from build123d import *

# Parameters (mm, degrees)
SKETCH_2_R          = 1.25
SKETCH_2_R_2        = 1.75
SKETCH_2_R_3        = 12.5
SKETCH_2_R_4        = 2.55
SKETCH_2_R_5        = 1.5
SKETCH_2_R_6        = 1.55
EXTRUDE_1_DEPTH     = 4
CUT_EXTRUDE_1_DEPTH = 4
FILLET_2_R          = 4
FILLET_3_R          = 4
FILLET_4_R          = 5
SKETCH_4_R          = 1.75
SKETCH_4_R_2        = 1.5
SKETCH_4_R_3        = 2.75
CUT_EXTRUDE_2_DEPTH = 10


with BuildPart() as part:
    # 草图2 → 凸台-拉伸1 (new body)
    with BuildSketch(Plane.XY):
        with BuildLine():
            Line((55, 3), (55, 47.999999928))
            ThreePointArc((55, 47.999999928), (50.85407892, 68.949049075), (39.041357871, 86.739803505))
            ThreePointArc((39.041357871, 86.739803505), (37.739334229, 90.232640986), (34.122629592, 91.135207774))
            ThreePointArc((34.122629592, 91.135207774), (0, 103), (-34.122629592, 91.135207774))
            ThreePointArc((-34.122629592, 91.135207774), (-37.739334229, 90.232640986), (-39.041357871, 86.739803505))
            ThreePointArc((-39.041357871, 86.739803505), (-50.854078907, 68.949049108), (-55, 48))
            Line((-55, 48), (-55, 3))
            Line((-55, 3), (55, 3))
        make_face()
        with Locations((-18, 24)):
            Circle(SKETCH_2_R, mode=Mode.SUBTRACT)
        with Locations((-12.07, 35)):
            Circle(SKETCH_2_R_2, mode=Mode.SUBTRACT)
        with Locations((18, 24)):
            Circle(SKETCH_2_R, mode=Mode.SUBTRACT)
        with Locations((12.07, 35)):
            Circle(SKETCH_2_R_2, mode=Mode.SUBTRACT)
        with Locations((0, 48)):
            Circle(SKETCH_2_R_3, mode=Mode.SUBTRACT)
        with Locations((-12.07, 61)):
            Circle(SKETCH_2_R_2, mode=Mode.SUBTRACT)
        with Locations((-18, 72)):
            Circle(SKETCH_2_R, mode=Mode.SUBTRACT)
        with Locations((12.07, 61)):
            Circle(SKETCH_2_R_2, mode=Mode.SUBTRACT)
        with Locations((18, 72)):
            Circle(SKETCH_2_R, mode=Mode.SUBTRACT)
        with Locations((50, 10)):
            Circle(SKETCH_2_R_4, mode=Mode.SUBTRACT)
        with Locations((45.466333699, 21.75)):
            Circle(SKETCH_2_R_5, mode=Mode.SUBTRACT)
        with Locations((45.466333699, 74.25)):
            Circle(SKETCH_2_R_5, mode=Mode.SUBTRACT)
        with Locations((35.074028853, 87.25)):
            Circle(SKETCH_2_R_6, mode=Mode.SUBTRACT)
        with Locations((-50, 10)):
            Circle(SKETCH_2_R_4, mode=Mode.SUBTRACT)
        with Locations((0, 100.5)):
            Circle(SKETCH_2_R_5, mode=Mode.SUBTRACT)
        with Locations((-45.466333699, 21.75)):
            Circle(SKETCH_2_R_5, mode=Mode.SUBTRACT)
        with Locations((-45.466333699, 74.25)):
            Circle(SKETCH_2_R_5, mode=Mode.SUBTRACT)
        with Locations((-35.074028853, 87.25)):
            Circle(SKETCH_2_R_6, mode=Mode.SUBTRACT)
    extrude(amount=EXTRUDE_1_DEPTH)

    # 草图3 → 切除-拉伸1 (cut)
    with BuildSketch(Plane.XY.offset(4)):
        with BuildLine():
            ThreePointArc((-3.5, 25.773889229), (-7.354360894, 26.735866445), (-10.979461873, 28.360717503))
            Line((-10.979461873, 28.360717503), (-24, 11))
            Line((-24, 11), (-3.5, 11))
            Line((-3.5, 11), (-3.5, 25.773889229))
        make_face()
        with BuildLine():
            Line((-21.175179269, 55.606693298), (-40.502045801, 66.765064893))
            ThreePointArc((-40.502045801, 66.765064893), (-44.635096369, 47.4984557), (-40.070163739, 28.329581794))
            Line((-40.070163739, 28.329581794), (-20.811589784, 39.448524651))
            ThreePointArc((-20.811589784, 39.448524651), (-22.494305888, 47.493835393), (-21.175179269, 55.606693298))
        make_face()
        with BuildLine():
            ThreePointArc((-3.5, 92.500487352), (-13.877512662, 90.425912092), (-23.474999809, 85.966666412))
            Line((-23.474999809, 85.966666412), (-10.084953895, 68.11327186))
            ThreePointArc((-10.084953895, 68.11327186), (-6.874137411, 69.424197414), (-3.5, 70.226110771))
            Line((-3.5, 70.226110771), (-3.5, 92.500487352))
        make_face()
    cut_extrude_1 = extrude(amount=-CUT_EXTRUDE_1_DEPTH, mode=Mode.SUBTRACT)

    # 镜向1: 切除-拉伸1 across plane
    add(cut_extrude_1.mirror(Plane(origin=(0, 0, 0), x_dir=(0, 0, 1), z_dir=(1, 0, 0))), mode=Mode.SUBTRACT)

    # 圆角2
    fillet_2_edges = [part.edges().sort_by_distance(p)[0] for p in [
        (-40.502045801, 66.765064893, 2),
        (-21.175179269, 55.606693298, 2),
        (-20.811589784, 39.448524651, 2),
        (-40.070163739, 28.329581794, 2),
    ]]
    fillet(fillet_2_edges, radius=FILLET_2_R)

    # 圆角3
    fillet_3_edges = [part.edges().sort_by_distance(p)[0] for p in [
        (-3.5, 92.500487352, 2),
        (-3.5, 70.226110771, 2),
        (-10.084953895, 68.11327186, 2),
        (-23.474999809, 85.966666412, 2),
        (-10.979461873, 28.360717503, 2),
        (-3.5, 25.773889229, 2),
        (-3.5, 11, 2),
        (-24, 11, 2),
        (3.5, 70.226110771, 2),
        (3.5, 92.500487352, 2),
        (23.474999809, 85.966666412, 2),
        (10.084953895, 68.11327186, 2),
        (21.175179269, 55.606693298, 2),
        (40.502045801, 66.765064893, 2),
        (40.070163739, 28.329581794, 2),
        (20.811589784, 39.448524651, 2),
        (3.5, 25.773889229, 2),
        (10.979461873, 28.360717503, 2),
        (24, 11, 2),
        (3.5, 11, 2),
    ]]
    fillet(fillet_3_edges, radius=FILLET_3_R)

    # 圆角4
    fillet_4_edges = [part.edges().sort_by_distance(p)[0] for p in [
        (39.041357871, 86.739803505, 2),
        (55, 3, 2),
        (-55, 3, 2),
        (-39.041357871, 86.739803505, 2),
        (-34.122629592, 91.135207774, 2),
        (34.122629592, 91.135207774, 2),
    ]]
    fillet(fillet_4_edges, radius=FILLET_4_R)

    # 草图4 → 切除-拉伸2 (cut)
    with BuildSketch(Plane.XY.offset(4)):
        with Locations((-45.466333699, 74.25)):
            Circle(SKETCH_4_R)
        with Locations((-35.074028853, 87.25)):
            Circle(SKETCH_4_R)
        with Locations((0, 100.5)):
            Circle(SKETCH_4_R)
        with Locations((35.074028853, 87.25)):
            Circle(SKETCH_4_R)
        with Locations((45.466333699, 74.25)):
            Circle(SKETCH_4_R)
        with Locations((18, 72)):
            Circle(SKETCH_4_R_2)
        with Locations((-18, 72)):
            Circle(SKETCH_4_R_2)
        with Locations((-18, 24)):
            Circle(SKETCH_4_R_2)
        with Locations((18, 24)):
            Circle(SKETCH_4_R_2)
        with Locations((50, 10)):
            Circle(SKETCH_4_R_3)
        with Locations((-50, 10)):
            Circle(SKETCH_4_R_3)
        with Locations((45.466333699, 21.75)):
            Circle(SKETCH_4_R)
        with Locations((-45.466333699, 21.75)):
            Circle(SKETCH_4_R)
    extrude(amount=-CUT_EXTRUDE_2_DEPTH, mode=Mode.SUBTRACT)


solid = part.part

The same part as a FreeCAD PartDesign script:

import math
import FreeCAD as App
import Part
import Sketcher
Q = App.Units.Quantity


def edges_at(feature, points):
    """Names of the edges that pass closest to the given points."""
    edges = feature.Shape.Edges
    near = lambda p: min(range(len(edges)), key=lambda i: edges[i].distToShape(Part.Vertex(*p))[0])
    return sorted({f"Edge{near(p) + 1}" for p in points})

doc = App.newDocument("Part")
body = doc.addObject("PartDesign::Body", "Body")

# Sketch on XY plane
sketch1 = body.newObject("Sketcher::SketchObject", "Sketch")
sketch1.AttachmentSupport = (doc.getObject("XY_Plane"), [""])
sketch1.MapMode = "FlatFace"
sketch1.addGeometry(Part.LineSegment(App.Vector(55, 3, 0), App.Vector(55, 48, 0)), False)
sketch1.addGeometry(Part.ArcOfCircle(Part.Circle(App.Vector(0, 48, 0), App.Vector(0, 0, 1), 55), math.radians(0), math.radians(44.777868)), False)
sketch1.addGeometry(Part.ArcOfCircle(Part.Circle(App.Vector(35.074029, 87.25, 0), App.Vector(0, 0, 1), 4), math.radians(-7.327988), math.radians(103.759669)), False)
sketch1.addGeometry(Part.ArcOfCircle(Part.Circle(App.Vector(0, 48, 0), App.Vector(0, 0, 1), 55), math.radians(51.653813), math.radians(128.346187)), False)
sketch1.addGeometry(Part.ArcOfCircle(Part.Circle(App.Vector(-35.074029, 87.25, 0), App.Vector(0, 0, 1), 4), math.radians(76.240331), math.radians(187.327988)), False)
sketch1.addGeometry(Part.ArcOfCircle(Part.Circle(App.Vector(0, 48, 0), App.Vector(0, 0, 1), 55), math.radians(135.222132), math.radians(180)), False)
sketch1.addGeometry(Part.LineSegment(App.Vector(-55, 48, 0), App.Vector(-55, 3, 0)), False)
sketch1.addGeometry(Part.LineSegment(App.Vector(-55, 3, 0), App.Vector(55, 3, 0)), False)
sketch1.addGeometry(Part.Circle(App.Vector(-50, 10, 0), App.Vector(0, 0, 1), 2.55), False)
sketch1.addGeometry(Part.Circle(App.Vector(-45.466334, 21.75, 0), App.Vector(0, 0, 1), 1.5), False)
sketch1.addGeometry(Part.Circle(App.Vector(-18, 24, 0), App.Vector(0, 0, 1), 1.25), False)
sketch1.addGeometry(Part.Circle(App.Vector(-12.07, 35, 0), App.Vector(0, 0, 1), 1.75), False)
sketch1.addGeometry(Part.Circle(App.Vector(0, 48, 0), App.Vector(0, 0, 1), 12.5), False)
sketch1.addGeometry(Part.Circle(App.Vector(18, 24, 0), App.Vector(0, 0, 1), 1.25), False)
sketch1.addGeometry(Part.Circle(App.Vector(50, 10, 0), App.Vector(0, 0, 1), 2.55), False)
sketch1.addGeometry(Part.Circle(App.Vector(45.466334, 21.75, 0), App.Vector(0, 0, 1), 1.5), False)
sketch1.addGeometry(Part.Circle(App.Vector(12.07, 35, 0), App.Vector(0, 0, 1), 1.75), False)
sketch1.addGeometry(Part.Circle(App.Vector(-45.466334, 74.25, 0), App.Vector(0, 0, 1), 1.5), False)
sketch1.addGeometry(Part.Circle(App.Vector(-12.07, 61, 0), App.Vector(0, 0, 1), 1.75), False)
sketch1.addGeometry(Part.Circle(App.Vector(-18, 72, 0), App.Vector(0, 0, 1), 1.25), False)
sketch1.addGeometry(Part.Circle(App.Vector(-35.074029, 87.25, 0), App.Vector(0, 0, 1), 1.55), False)
sketch1.addGeometry(Part.Circle(App.Vector(0, 100.5, 0), App.Vector(0, 0, 1), 1.5), False)
sketch1.addGeometry(Part.Circle(App.Vector(12.07, 61, 0), App.Vector(0, 0, 1), 1.75), False)
sketch1.addGeometry(Part.Circle(App.Vector(18, 72, 0), App.Vector(0, 0, 1), 1.25), False)
sketch1.addGeometry(Part.Circle(App.Vector(45.466334, 74.25, 0), App.Vector(0, 0, 1), 1.5), False)
sketch1.addGeometry(Part.Circle(App.Vector(35.074029, 87.25, 0), App.Vector(0, 0, 1), 1.55), False)
sketch1.addConstraint(Sketcher.Constraint("Tangent", 0, 2, 1, 1))
sketch1.addConstraint(Sketcher.Constraint("Coincident", 1, 2, 2, 1))
sketch1.addConstraint(Sketcher.Constraint("Coincident", 2, 2, 3, 1))
sketch1.addConstraint(Sketcher.Constraint("Coincident", 3, 2, 4, 1))
sketch1.addConstraint(Sketcher.Constraint("Coincident", 4, 2, 5, 1))
sketch1.addConstraint(Sketcher.Constraint("Tangent", 5, 2, 6, 1))
sketch1.addConstraint(Sketcher.Constraint("Coincident", 6, 2, 7, 1))
sketch1.addConstraint(Sketcher.Constraint("Coincident", 7, 2, 0, 1))
sketch1.addConstraint(Sketcher.Constraint("Vertical", 0))
sketch1.addConstraint(Sketcher.Constraint("Vertical", 6))
sketch1.addConstraint(Sketcher.Constraint("Horizontal", 7))
sketch1.addConstraint(Sketcher.Constraint("Coincident", 3, 3, 1, 3))
sketch1.addConstraint(Sketcher.Constraint("Coincident", 5, 3, 1, 3))
sketch1.addConstraint(Sketcher.Constraint("Coincident", 12, 3, 1, 3))
sketch1.addConstraint(Sketcher.Constraint("Coincident", 20, 3, 4, 3))
sketch1.addConstraint(Sketcher.Constraint("Coincident", 25, 3, 2, 3))
sketch1.addConstraint(Sketcher.Constraint("Equal", 1, 3))
sketch1.addConstraint(Sketcher.Constraint("Equal", 2, 4))
sketch1.addConstraint(Sketcher.Constraint("Equal", 3, 5))
sketch1.addConstraint(Sketcher.Constraint("Equal", 10, 13))
sketch1.addConstraint(Sketcher.Constraint("Equal", 8, 14))
sketch1.addConstraint(Sketcher.Constraint("Equal", 9, 15))
sketch1.addConstraint(Sketcher.Constraint("Equal", 11, 16))
sketch1.addConstraint(Sketcher.Constraint("Equal", 15, 17))
sketch1.addConstraint(Sketcher.Constraint("Equal", 16, 18))
sketch1.addConstraint(Sketcher.Constraint("Equal", 13, 19))
sketch1.addConstraint(Sketcher.Constraint("Equal", 17, 21))
sketch1.addConstraint(Sketcher.Constraint("Equal", 18, 22))
sketch1.addConstraint(Sketcher.Constraint("Equal", 19, 23))
sketch1.addConstraint(Sketcher.Constraint("Equal", 21, 24))
sketch1.addConstraint(Sketcher.Constraint("Equal", 20, 25))
sketch1.addConstraint(Sketcher.Constraint("Symmetric", 2, 3, 4, 3, -2))
sketch1.addConstraint(Sketcher.Constraint("Symmetric", 10, 3, 13, 3, -2))
sketch1.addConstraint(Sketcher.Constraint("Symmetric", 8, 3, 14, 3, -2))
sketch1.addConstraint(Sketcher.Constraint("Symmetric", 9, 3, 15, 3, -2))
sketch1.addConstraint(Sketcher.Constraint("Symmetric", 11, 3, 16, 3, -2))
sketch1.addConstraint(Sketcher.Constraint("Symmetric", 18, 3, 22, 3, -2))
sketch1.addConstraint(Sketcher.Constraint("Symmetric", 19, 3, 23, 3, -2))
sketch1.addConstraint(Sketcher.Constraint("Symmetric", 17, 3, 24, 3, -2))
sketch1.addConstraint(Sketcher.Constraint("PointOnObject", 1, 3, -2))
sketch1.addConstraint(Sketcher.Constraint("PointOnObject", 21, 3, -2))
sketch1.addConstraint(Sketcher.Constraint("Vertical", 9, 3, 17, 3))
sketch1.addConstraint(Sketcher.Constraint("Vertical", 11, 3, 18, 3))
sketch1.addConstraint(Sketcher.Constraint("Vertical", 10, 3, 19, 3))
sketch1.addConstraint(Sketcher.Constraint("Diameter", 9, Q("3 mm")))
sketch1.addConstraint(Sketcher.Constraint("Diameter", 12, Q("25 mm")))
sketch1.addConstraint(Sketcher.Constraint("Radius", 1, Q("55 mm")))
sketch1.addConstraint(Sketcher.Constraint("Radius", 2, Q("4 mm")))
sketch1.addConstraint(Sketcher.Constraint("Diameter", 8, Q("5.1 mm")))
sketch1.addConstraint(Sketcher.Constraint("Diameter", 10, Q("2.5 mm")))
sketch1.addConstraint(Sketcher.Constraint("Diameter", 11, Q("3.5 mm")))
sketch1.addConstraint(Sketcher.Constraint("Diameter", 20, Q("3.1 mm")))
sketch1.addConstraint(Sketcher.Constraint("DistanceY", 0, 1, 0, 2, Q("45 mm")))
sketch1.addConstraint(Sketcher.Constraint("DistanceY", -1, 1, 1, 3, Q("48 mm")))
sketch1.addConstraint(Sketcher.Constraint("DistanceX", 8, 3, -1, 1, Q("50 mm")))
sketch1.addConstraint(Sketcher.Constraint("DistanceY", -1, 1, 8, 3, Q("10 mm")))
sketch1.addConstraint(Sketcher.Constraint("DistanceX", 10, 3, -1, 1, Q("18 mm")))
sketch1.addConstraint(Sketcher.Constraint("DistanceY", -1, 1, 10, 3, Q("24 mm")))
sketch1.addConstraint(Sketcher.Constraint("DistanceY", -1, 1, 11, 3, Q("35 mm")))
sketch1.addConstraint(Sketcher.Constraint("DistanceY", -1, 1, 18, 3, Q("61 mm")))
sketch1.addConstraint(Sketcher.Constraint("DistanceY", -1, 1, 19, 3, Q("72 mm")))
sketch1.addConstraint(Sketcher.Constraint("DistanceY", 17, 3, 4, 3, Q("13 mm")))
sketch1.addConstraint(Sketcher.Constraint("DistanceY", -1, 1, 21, 3, Q("100.5 mm")))
sketch1.addConstraint(Sketcher.Constraint("DistanceY", 9, 3, 4, 3, Q("65.5 mm")))
sketch1.addConstraint(Sketcher.Constraint("DistanceY", -1, 1, 2, 3, Q("87.25 mm")))
sketch1.addConstraint(Sketcher.Constraint("DistanceX", 11, 3, -1, 1, Q("12.07 mm")))
sketch1.addConstraint(Sketcher.Constraint("DistanceX", 2, 2, 2, 3, Q("0.951399 mm")))
sketch1.addConstraint(Sketcher.Constraint("DistanceX", 9, 3, -1, 1, Q("45.466334 mm")))
pad1 = body.newObject("PartDesign::Pad", "Pad")
pad1.Profile = sketch1
pad1.Length = 4

# Sketch on XY plane
sketch2 = body.newObject("Sketcher::SketchObject", "Sketch001")
sketch2.AttachmentSupport = (doc.getObject("XY_Plane"), [""])
sketch2.MapMode = "FlatFace"
sketch2.AttachmentOffset = App.Placement(App.Vector(0, 0, 4), App.Rotation())
sketch2.addGeometry(Part.ArcOfCircle(Part.Circle(App.Vector(0, 48, 0), App.Vector(0, 0, 1), 22.5), math.radians(-119.207642), math.radians(-98.949018)), False)
sketch2.addGeometry(Part.LineSegment(App.Vector(-10.979462, 28.360718, 0), App.Vector(-24, 11, 0)), False)
sketch2.addGeometry(Part.LineSegment(App.Vector(-24, 11, 0), App.Vector(-3.5, 11, 0)), False)
sketch2.addGeometry(Part.LineSegment(App.Vector(-3.5, 11, 0), App.Vector(-3.5, 25.773889, 0)), False)
sketch2.addGeometry(Part.LineSegment(App.Vector(-21.175179, 55.606693, 0), App.Vector(-40.502046, 66.765065, 0)), False)
sketch2.addGeometry(Part.ArcOfCircle(Part.Circle(App.Vector(0, 48, 0), App.Vector(0, 0, 1), 44.637914), math.radians(155.141167), math.radians(206.146393)), False)
sketch2.addGeometry(Part.LineSegment(App.Vector(-40.070164, 28.329582, 0), App.Vector(-20.81159, 39.448525, 0)), False)
sketch2.addGeometry(Part.ArcOfCircle(Part.Circle(App.Vector(0, 48, 0), App.Vector(0, 0, 1), 22.5), math.radians(160.240348), math.radians(202.337744)), False)
sketch2.addGeometry(Part.ArcOfCircle(Part.Circle(App.Vector(0, 48, 0), App.Vector(0, 0, 1), 44.637914), math.radians(94.497103), math.radians(121.728731)), False)
sketch2.addGeometry(Part.LineSegment(App.Vector(-23.475, 85.966666, 0), App.Vector(-10.084954, 68.113272, 0)), False)
sketch2.addGeometry(Part.ArcOfCircle(Part.Circle(App.Vector(0, 48, 0), App.Vector(0, 0, 1), 22.5), math.radians(98.949018), math.radians(116.629549)), False)
sketch2.addGeometry(Part.LineSegment(App.Vector(-3.5, 70.226111, 0), App.Vector(-3.5, 92.500487, 0)), False)
sketch2.addConstraint(Sketcher.Constraint("Coincident", 0, 1, 1, 1))
sketch2.addConstraint(Sketcher.Constraint("Coincident", 1, 2, 2, 1))
sketch2.addConstraint(Sketcher.Constraint("Coincident", 2, 2, 3, 1))
sketch2.addConstraint(Sketcher.Constraint("Coincident", 3, 2, 0, 2))
sketch2.addConstraint(Sketcher.Constraint("Coincident", 4, 2, 5, 1))
sketch2.addConstraint(Sketcher.Constraint("Coincident", 5, 2, 6, 1))
sketch2.addConstraint(Sketcher.Constraint("Coincident", 6, 2, 7, 2))
sketch2.addConstraint(Sketcher.Constraint("Coincident", 7, 1, 4, 1))
sketch2.addConstraint(Sketcher.Constraint("Coincident", 8, 2, 9, 1))
sketch2.addConstraint(Sketcher.Constraint("Coincident", 9, 2, 10, 2))
sketch2.addConstraint(Sketcher.Constraint("Coincident", 10, 1, 11, 1))
sketch2.addConstraint(Sketcher.Constraint("Coincident", 11, 2, 8, 1))
sketch2.addConstraint(Sketcher.Constraint("Horizontal", 2))
sketch2.addConstraint(Sketcher.Constraint("Vertical", 3))
sketch2.addConstraint(Sketcher.Constraint("Vertical", 11))
sketch2.addConstraint(Sketcher.Constraint("Coincident", 5, 3, 0, 3))
sketch2.addConstraint(Sketcher.Constraint("Coincident", 7, 3, 0, 3))
sketch2.addConstraint(Sketcher.Constraint("Coincident", 8, 3, 0, 3))
sketch2.addConstraint(Sketcher.Constraint("Coincident", 10, 3, 0, 3))
sketch2.addConstraint(Sketcher.Constraint("Equal", 0, 7))
sketch2.addConstraint(Sketcher.Constraint("Equal", 5, 8))
sketch2.addConstraint(Sketcher.Constraint("Equal", 7, 10))
sketch2.addConstraint(Sketcher.Constraint("PointOnObject", 0, 3, -2))
sketch2.addConstraint(Sketcher.Constraint("Vertical", 3, 2, 10, 1))
sketch2.addConstraint(Sketcher.Constraint("Equal", 4, 9))
sketch2.addConstraint(Sketcher.Constraint("Radius", 0, Q("22.5 mm")))
sketch2.addConstraint(Sketcher.Constraint("Angle", 4, Q("150 deg")))
sketch2.addConstraint(Sketcher.Constraint("Angle", 6, Q("30 deg")))
sketch2.addConstraint(Sketcher.Constraint("DistanceX", 2, 1, 2, 2, Q("20.5 mm")))
sketch2.addConstraint(Sketcher.Constraint("DistanceY", -1, 1, 0, 3, Q("48 mm")))
sketch2.addConstraint(Sketcher.Constraint("DistanceX", 1, 2, -1, 1, Q("24 mm")))
sketch2.addConstraint(Sketcher.Constraint("DistanceY", -1, 1, 1, 2, Q("11 mm")))
sketch2.addConstraint(Sketcher.Constraint("DistanceX", 8, 2, -1, 1, Q("23.475 mm")))
sketch2.addConstraint(Sketcher.Constraint("Radius", 5, Q("44.637914 mm")))
sketch2.addConstraint(Sketcher.Constraint("DistanceX", 5, 2, 0, 1, Q("29.090702 mm")))
sketch2.addConstraint(Sketcher.Constraint("DistanceY", 4, 2, 8, 2, Q("19.201602 mm")))
sketch2.addConstraint(Sketcher.Constraint("DistanceX", 0, 1, -1, 1, Q("10.979462 mm")))
pocket1 = body.newObject("PartDesign::Pocket", "Pocket")
pocket1.Profile = sketch2
pocket1.Length = 4
doc.recompute()

mirrored = body.newObject("PartDesign::Mirrored", "Mirrored")
mirrored.Originals = [pocket1]
mirrored.MirrorPlane = (doc.getObject("YZ_Plane"), [""])
body.Tip = mirrored
doc.recompute()

fillet = body.newObject("PartDesign::Fillet", "Fillet")
fillet.Base = (mirrored, edges_at(mirrored, [
    (-40.502, 66.765, 2),
    (-21.175, 55.607, 2),
    (-20.812, 39.449, 2),
    (-40.07, 28.33, 2),
]))
fillet.Radius = 4
doc.recompute()

fillet2 = body.newObject("PartDesign::Fillet", "Fillet001")
fillet2.Base = (fillet, edges_at(fillet, [
    (-3.5, 92.5, 2),
    (-3.5, 70.226, 2),
    (-10.085, 68.113, 2),
    (-23.475, 85.967, 2),
    (-10.979, 28.361, 2),
    (-3.5, 25.774, 2),
    (-3.5, 11, 2),
    (-24, 11, 2),
    (3.5, 70.226, 2),
    (3.5, 92.5, 2),
    (23.475, 85.967, 2),
    (10.085, 68.113, 2),
    (21.175, 55.607, 2),
    (40.502, 66.765, 2),
    (40.07, 28.33, 2),
    (20.812, 39.449, 2),
    (3.5, 25.774, 2),
    (10.979, 28.361, 2),
    (24, 11, 2),
    (3.5, 11, 2),
]))
fillet2.Radius = 4
doc.recompute()

fillet3 = body.newObject("PartDesign::Fillet", "Fillet002")
fillet3.Base = (fillet2, edges_at(fillet2, [
    (39.041, 86.74, 2),
    (55, 3, 2),
    (-55, 3, 2),
    (-39.041, 86.74, 2),
    (-34.123, 91.135, 2),
    (34.123, 91.135, 2),
]))
fillet3.Radius = 5

# Sketch on XY plane
sketch3 = body.newObject("Sketcher::SketchObject", "Sketch002")
sketch3.AttachmentSupport = (doc.getObject("XY_Plane"), [""])
sketch3.MapMode = "FlatFace"
sketch3.AttachmentOffset = App.Placement(App.Vector(0, 0, 4), App.Rotation())
sketch3.addGeometry(Part.Circle(App.Vector(-45.466334, 74.25, 0), App.Vector(0, 0, 1), 1.75), False)
sketch3.addGeometry(Part.Circle(App.Vector(-35.074029, 87.25, 0), App.Vector(0, 0, 1), 1.75), False)
sketch3.addGeometry(Part.Circle(App.Vector(0, 100.5, 0), App.Vector(0, 0, 1), 1.75), False)
sketch3.addGeometry(Part.Circle(App.Vector(35.074029, 87.25, 0), App.Vector(0, 0, 1), 1.75), False)
sketch3.addGeometry(Part.Circle(App.Vector(45.466334, 74.25, 0), App.Vector(0, 0, 1), 1.75), False)
sketch3.addGeometry(Part.Circle(App.Vector(18, 72, 0), App.Vector(0, 0, 1), 1.5), False)
sketch3.addGeometry(Part.Circle(App.Vector(-18, 72, 0), App.Vector(0, 0, 1), 1.5), False)
sketch3.addGeometry(Part.Circle(App.Vector(-18, 24, 0), App.Vector(0, 0, 1), 1.5), False)
sketch3.addGeometry(Part.Circle(App.Vector(18, 24, 0), App.Vector(0, 0, 1), 1.5), False)
sketch3.addGeometry(Part.Circle(App.Vector(50, 10, 0), App.Vector(0, 0, 1), 2.75), False)
sketch3.addGeometry(Part.Circle(App.Vector(-50, 10, 0), App.Vector(0, 0, 1), 2.75), False)
sketch3.addGeometry(Part.Circle(App.Vector(45.466334, 21.75, 0), App.Vector(0, 0, 1), 1.75), False)
sketch3.addGeometry(Part.Circle(App.Vector(-45.466334, 21.75, 0), App.Vector(0, 0, 1), 1.75), False)
sketch3.addConstraint(Sketcher.Constraint("Equal", 0, 1))
sketch3.addConstraint(Sketcher.Constraint("Equal", 1, 2))
sketch3.addConstraint(Sketcher.Constraint("Equal", 2, 3))
sketch3.addConstraint(Sketcher.Constraint("Equal", 3, 4))
sketch3.addConstraint(Sketcher.Constraint("Equal", 5, 6))
sketch3.addConstraint(Sketcher.Constraint("Equal", 6, 7))
sketch3.addConstraint(Sketcher.Constraint("Equal", 7, 8))
sketch3.addConstraint(Sketcher.Constraint("Equal", 9, 10))
sketch3.addConstraint(Sketcher.Constraint("Equal", 4, 11))
sketch3.addConstraint(Sketcher.Constraint("Equal", 11, 12))
sketch3.addConstraint(Sketcher.Constraint("Symmetric", 1, 3, 3, 3, -2))
sketch3.addConstraint(Sketcher.Constraint("Symmetric", 0, 3, 4, 3, -2))
sketch3.addConstraint(Sketcher.Constraint("Symmetric", 5, 3, 6, 3, -2))
sketch3.addConstraint(Sketcher.Constraint("Symmetric", 7, 3, 8, 3, -2))
sketch3.addConstraint(Sketcher.Constraint("Symmetric", 9, 3, 10, 3, -2))
sketch3.addConstraint(Sketcher.Constraint("Symmetric", 11, 3, 12, 3, -2))
sketch3.addConstraint(Sketcher.Constraint("PointOnObject", 2, 3, -2))
sketch3.addConstraint(Sketcher.Constraint("Vertical", 6, 3, 7, 3))
sketch3.addConstraint(Sketcher.Constraint("Vertical", 4, 3, 11, 3))
sketch3.addConstraint(Sketcher.Constraint("Diameter", 5, Q("3 mm")))
sketch3.addConstraint(Sketcher.Constraint("Diameter", 0, Q("3.5 mm")))
sketch3.addConstraint(Sketcher.Constraint("Diameter", 9, Q("5.5 mm")))
sketch3.addConstraint(Sketcher.Constraint("DistanceX", -1, 1, 5, 3, Q("18 mm")))
sketch3.addConstraint(Sketcher.Constraint("DistanceY", -1, 1, 5, 3, Q("72 mm")))
sketch3.addConstraint(Sketcher.Constraint("DistanceY", -1, 1, 7, 3, Q("24 mm")))
sketch3.addConstraint(Sketcher.Constraint("DistanceX", -1, 1, 9, 3, Q("50 mm")))
sketch3.addConstraint(Sketcher.Constraint("DistanceY", -1, 1, 9, 3, Q("10 mm")))
sketch3.addConstraint(Sketcher.Constraint("DistanceY", 0, 3, 1, 3, Q("13 mm")))
sketch3.addConstraint(Sketcher.Constraint("DistanceY", -1, 1, 2, 3, Q("100.5 mm")))
sketch3.addConstraint(Sketcher.Constraint("DistanceY", 11, 3, 4, 3, Q("52.5 mm")))
sketch3.addConstraint(Sketcher.Constraint("DistanceY", -1, 1, 0, 3, Q("74.25 mm")))
sketch3.addConstraint(Sketcher.Constraint("DistanceX", 1, 3, -1, 1, Q("35.074029 mm")))
sketch3.addConstraint(Sketcher.Constraint("DistanceX", 0, 3, -1, 1, Q("45.466334 mm")))
pocket2 = body.newObject("PartDesign::Pocket", "Pocket001")
pocket2.Profile = sketch3
pocket2.Length = 10

doc.recompute()
